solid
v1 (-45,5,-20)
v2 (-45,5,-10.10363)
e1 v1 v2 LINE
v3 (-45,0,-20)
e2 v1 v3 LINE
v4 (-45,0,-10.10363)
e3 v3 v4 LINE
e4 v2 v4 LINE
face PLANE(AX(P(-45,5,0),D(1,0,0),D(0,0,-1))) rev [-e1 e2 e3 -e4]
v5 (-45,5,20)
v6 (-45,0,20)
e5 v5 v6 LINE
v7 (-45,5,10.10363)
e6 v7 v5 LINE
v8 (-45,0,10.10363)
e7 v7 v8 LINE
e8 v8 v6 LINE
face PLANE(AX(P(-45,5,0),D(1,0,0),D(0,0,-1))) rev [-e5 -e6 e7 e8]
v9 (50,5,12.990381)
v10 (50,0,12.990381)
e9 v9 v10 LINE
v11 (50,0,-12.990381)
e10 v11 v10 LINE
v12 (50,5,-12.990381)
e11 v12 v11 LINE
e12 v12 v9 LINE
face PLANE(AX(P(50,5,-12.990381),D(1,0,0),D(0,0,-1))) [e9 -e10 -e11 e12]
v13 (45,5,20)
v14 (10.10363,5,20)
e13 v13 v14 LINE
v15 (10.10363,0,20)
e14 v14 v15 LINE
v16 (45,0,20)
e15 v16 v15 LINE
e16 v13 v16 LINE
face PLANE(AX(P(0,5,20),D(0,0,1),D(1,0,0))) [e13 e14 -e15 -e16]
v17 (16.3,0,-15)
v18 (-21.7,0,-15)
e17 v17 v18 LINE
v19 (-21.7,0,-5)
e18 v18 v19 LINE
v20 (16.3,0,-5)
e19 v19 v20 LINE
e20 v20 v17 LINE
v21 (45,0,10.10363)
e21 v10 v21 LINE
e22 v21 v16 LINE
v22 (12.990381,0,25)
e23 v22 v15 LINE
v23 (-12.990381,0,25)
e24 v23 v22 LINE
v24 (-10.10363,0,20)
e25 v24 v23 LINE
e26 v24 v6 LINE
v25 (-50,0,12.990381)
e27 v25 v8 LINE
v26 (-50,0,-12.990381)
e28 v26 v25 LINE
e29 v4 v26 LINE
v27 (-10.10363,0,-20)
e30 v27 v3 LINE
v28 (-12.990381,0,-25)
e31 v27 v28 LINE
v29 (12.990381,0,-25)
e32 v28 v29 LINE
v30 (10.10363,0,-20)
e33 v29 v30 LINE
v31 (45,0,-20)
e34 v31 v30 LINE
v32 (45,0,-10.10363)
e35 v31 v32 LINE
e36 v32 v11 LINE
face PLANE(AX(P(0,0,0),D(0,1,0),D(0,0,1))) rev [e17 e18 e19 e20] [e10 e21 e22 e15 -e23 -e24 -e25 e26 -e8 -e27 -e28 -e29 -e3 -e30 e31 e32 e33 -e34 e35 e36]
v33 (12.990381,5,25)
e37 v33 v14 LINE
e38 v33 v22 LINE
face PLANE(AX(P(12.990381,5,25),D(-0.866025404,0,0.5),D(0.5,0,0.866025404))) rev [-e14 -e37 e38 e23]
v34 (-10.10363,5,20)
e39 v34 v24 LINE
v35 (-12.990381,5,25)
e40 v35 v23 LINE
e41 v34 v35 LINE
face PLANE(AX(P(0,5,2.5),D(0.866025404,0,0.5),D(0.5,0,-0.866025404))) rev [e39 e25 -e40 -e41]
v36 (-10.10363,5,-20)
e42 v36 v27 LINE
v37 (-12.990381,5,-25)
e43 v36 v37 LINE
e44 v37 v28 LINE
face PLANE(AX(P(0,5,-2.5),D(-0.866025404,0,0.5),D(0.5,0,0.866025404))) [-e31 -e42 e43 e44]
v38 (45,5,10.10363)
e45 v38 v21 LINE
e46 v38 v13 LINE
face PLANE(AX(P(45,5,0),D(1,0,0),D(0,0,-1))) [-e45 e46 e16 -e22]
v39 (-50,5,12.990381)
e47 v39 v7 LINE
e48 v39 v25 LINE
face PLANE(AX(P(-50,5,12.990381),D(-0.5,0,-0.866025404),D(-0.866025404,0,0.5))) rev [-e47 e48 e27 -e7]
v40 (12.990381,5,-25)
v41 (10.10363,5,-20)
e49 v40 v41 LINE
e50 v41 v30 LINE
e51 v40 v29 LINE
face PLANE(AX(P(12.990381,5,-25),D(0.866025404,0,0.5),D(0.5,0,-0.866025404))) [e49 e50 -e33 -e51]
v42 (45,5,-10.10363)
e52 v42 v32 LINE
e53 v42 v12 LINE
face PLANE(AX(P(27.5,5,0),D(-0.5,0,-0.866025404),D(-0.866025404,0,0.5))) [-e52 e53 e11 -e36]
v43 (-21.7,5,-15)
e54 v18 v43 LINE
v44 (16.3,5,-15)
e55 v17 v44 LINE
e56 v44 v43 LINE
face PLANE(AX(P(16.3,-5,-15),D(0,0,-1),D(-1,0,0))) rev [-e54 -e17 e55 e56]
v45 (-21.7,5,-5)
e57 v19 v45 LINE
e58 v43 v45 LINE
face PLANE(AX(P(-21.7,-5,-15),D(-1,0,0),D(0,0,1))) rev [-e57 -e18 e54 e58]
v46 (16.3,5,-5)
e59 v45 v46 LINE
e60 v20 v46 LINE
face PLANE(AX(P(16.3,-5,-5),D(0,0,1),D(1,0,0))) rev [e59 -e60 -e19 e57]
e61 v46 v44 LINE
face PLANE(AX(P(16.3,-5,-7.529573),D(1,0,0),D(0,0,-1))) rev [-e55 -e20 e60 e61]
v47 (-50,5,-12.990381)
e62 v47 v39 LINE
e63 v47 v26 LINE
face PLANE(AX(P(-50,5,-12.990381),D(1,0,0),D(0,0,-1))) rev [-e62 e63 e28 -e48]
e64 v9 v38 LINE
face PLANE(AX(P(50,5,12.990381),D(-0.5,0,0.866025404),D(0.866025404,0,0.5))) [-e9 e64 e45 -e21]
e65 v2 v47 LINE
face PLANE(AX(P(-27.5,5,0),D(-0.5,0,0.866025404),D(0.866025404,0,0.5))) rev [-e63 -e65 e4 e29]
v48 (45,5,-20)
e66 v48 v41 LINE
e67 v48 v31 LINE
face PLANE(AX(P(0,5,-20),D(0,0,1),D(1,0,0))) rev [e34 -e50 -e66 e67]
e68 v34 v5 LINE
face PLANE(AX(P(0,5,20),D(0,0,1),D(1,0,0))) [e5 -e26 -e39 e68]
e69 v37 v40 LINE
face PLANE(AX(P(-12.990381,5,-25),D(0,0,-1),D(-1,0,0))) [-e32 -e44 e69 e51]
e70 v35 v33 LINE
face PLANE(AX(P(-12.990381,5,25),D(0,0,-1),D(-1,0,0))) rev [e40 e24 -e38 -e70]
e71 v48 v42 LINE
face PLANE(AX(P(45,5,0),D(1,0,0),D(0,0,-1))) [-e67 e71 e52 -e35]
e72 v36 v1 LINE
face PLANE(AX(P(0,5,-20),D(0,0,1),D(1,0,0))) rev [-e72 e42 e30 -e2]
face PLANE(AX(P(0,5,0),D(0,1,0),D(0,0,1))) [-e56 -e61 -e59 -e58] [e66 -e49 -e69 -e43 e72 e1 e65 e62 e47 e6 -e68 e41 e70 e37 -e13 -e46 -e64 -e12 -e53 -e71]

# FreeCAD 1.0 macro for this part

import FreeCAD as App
import Part
import Sketcher

V = App.Vector
Q = App.Units.Quantity

doc = App.newDocument("Part")
params = doc.addObject("Spreadsheet::Sheet", "Params")
for row, (alias, value) in enumerate([
    ("pad1_length", "5 mm"),
    ("sketch2_width", "38 mm"),
    ("sketch2_height", "10 mm"),
    ("pocket1_length", "10 mm"),
], start=1):
    params.set(f"A{row}", alias)
    params.set(f"B{row}", "=" + value)
    params.setAlias(f"B{row}", alias)

body = doc.addObject("PartDesign::Body", "Body")

sketch1 = body.newObject("Sketcher::SketchObject", "Sketch")
sketch1.AttachmentSupport = (doc.getObject("XZ_Plane"), [""])
sketch1.MapMode = "FlatFace"
sketch1.addGeometry([
    Part.LineSegment(V(45, -20, 0), V(10, -20, 0)),
    Part.LineSegment(V(10, -20, 0), V(13, -25, 0)),
    Part.LineSegment(V(13, -25, 0), V(-13, -25, 0)),
    Part.LineSegment(V(-13, -25, 0), V(-10, -20, 0)),
    Part.LineSegment(V(-10, -20, 0), V(-45, -20, 0)),
    Part.LineSegment(V(-45, -20, 0), V(-45, -10, 0)),
    Part.LineSegment(V(-45, -10, 0), V(-50, -13, 0)),
    Part.LineSegment(V(-50, -13, 0), V(-50, 13, 0)),
    Part.LineSegment(V(-50, 13, 0), V(-45, 10, 0)),
    Part.LineSegment(V(-45, 10, 0), V(-45, 20, 0)),
    Part.LineSegment(V(-45, 20, 0), V(-10, 20, 0)),
    Part.LineSegment(V(-10, 20, 0), V(-13, 25, 0)),
    Part.LineSegment(V(-13, 25, 0), V(13, 25, 0)),
    Part.LineSegment(V(13, 25, 0), V(10, 20, 0)),
    Part.LineSegment(V(10, 20, 0), V(45, 20, 0)),
    Part.LineSegment(V(45, 20, 0), V(45, 10, 0)),
    Part.LineSegment(V(45, 10, 0), V(50, 13, 0)),
    Part.LineSegment(V(50, 13, 0), V(50, -13, 0)),
    Part.LineSegment(V(50, -13, 0), V(45, -10, 0)),
    Part.LineSegment(V(45, -10, 0), V(45, -20, 0)),
], False)
sketch1.addConstraint([
    Sketcher.Constraint("Coincident", 0, 2, 1, 1),
    Sketcher.Constraint("Coincident", 1, 2, 2, 1),
    Sketcher.Constraint("Coincident", 2, 2, 3, 1),
    Sketcher.Constraint("Coincident", 3, 2, 4, 1),
    Sketcher.Constraint("Coincident", 4, 2, 5, 1),
    Sketcher.Constraint("Coincident", 5, 2, 6, 1),
    Sketcher.Constraint("Coincident", 6, 2, 7, 1),
    Sketcher.Constraint("Coincident", 7, 2, 8, 1),
    Sketcher.Constraint("Coincident", 8, 2, 9, 1),
    Sketcher.Constraint("Coincident", 9, 2, 10, 1),
    Sketcher.Constraint("Coincident", 10, 2, 11, 1),
    Sketcher.Constraint("Coincident", 11, 2, 12, 1),
    Sketcher.Constraint("Coincident", 12, 2, 13, 1),
    Sketcher.Constraint("Coincident", 13, 2, 14, 1),
    Sketcher.Constraint("Coincident", 14, 2, 15, 1),
    Sketcher.Constraint("Coincident", 15, 2, 16, 1),
    Sketcher.Constraint("Coincident", 16, 2, 17, 1),
    Sketcher.Constraint("Coincident", 17, 2, 18, 1),
    Sketcher.Constraint("Coincident", 18, 2, 19, 1),
    Sketcher.Constraint("Coincident", 19, 2, 0, 1),
    Sketcher.Constraint("Horizontal", 0),
    Sketcher.Constraint("Horizontal", 2),
    Sketcher.Constraint("Horizontal", 4),
    Sketcher.Constraint("Vertical", 5),
    Sketcher.Constraint("Vertical", 7),
    Sketcher.Constraint("Vertical", 9),
    Sketcher.Constraint("Horizontal", 10),
    Sketcher.Constraint("Horizontal", 12),
    Sketcher.Constraint("Horizontal", 14),
    Sketcher.Constraint("Vertical", 15),
    Sketcher.Constraint("Vertical", 17),
    Sketcher.Constraint("Vertical", 19),
    Sketcher.Constraint("Symmetric", 0, 2, 10, 2, -1, 1),
    Sketcher.Constraint("Symmetric", 1, 2, 11, 2, -1, 1),
    Sketcher.Constraint("Symmetric", 3, 2, 13, 2, -1, 1),
    Sketcher.Constraint("Symmetric", 5, 2, 15, 2, -1, 1),
    Sketcher.Constraint("Symmetric", 6, 2, 16, 2, -1, 1),
    Sketcher.Constraint("Symmetric", 8, 2, 18, 2, -1, 1),
    Sketcher.Constraint("Symmetric", 0, 2, 3, 2, -2),
    Sketcher.Constraint("Symmetric", 8, 2, 15, 2, -2),
    Sketcher.Constraint("Perpendicular", 1, 6),
    Sketcher.Constraint("Perpendicular", 3, 8),
    Sketcher.Constraint("Perpendicular", 8, 13),
    Sketcher.Constraint("Perpendicular", 13, 18),
    Sketcher.Constraint("Horizontal", 7, 2, 16, 2),
    Sketcher.Constraint("Equal", 12, 7),
    Sketcher.Constraint("Equal", 3, 6),
    Sketcher.Constraint("Angle", 1, Q("-60 deg")),
    Sketcher.Constraint("DistanceY", 0, 2, -1, 1, 20.0),
    Sketcher.Constraint("DistanceY", 1, 2, -1, 1, 25.0),
    Sketcher.Constraint("DistanceX", 4, 2, -1, 1, 45.0),
    Sketcher.Constraint("DistanceX", 0, 2, 0, 1, 34.89637),
])
pad1 = body.newObject("PartDesign::Pad", "Pad")
pad1.Profile = sketch1
pad1.setExpression("Length", "Params.pad1_length")
pad1.Reversed = True

sketch2 = body.newObject("Sketcher::SketchObject", "Sketch001")
sketch2.AttachmentSupport = (doc.getObject("XZ_Plane"), [""])
sketch2.MapMode = "FlatFace"
sketch2.AttachmentOffset = App.Placement(V(0, 0, -5), App.Rotation())
sketch2.addGeometry([
    Part.LineSegment(V(16, -15, 0), V(-22, -15, 0)),
    Part.LineSegment(V(-22, -15, 0), V(-22, -5, 0)),
    Part.LineSegment(V(-22, -5, 0), V(16, -5, 0)),
    Part.LineSegment(V(16, -5, 0), V(16, -15, 0)),
], False)
sketch2.addConstraint([
    Sketcher.Constraint("Coincident", 0, 2, 1, 1),
    Sketcher.Constraint("Coincident", 1, 2, 2, 1),
    Sketcher.Constraint("Coincident", 2, 2, 3, 1),
    Sketcher.Constraint("Coincident", 3, 2, 0, 1),
    Sketcher.Constraint("Horizontal", 0),
    Sketcher.Constraint("Vertical", 1),
    Sketcher.Constraint("Horizontal", 2),
    Sketcher.Constraint("Vertical", 3),
    Sketcher.Constraint("DistanceX", 0, 2, 0, 1, 38.0),
    Sketcher.Constraint("DistanceY", 1, 1, 1, 2, 10.0),
    Sketcher.Constraint("DistanceY", 0, 2, -1, 1, 15.0),
    Sketcher.Constraint("DistanceX", 0, 2, -1, 1, 21.7),
])
sketch2.setExpression("Constraints[8]", "Params.sketch2_width")
sketch2.setExpression("Constraints[9]", "Params.sketch2_height")
pocket1 = body.newObject("PartDesign::Pocket", "Pocket")
pocket1.Profile = sketch2
pocket1.setExpression("Length", "Params.pocket1_length")
pocket1.Reversed = True

doc.recompute()
